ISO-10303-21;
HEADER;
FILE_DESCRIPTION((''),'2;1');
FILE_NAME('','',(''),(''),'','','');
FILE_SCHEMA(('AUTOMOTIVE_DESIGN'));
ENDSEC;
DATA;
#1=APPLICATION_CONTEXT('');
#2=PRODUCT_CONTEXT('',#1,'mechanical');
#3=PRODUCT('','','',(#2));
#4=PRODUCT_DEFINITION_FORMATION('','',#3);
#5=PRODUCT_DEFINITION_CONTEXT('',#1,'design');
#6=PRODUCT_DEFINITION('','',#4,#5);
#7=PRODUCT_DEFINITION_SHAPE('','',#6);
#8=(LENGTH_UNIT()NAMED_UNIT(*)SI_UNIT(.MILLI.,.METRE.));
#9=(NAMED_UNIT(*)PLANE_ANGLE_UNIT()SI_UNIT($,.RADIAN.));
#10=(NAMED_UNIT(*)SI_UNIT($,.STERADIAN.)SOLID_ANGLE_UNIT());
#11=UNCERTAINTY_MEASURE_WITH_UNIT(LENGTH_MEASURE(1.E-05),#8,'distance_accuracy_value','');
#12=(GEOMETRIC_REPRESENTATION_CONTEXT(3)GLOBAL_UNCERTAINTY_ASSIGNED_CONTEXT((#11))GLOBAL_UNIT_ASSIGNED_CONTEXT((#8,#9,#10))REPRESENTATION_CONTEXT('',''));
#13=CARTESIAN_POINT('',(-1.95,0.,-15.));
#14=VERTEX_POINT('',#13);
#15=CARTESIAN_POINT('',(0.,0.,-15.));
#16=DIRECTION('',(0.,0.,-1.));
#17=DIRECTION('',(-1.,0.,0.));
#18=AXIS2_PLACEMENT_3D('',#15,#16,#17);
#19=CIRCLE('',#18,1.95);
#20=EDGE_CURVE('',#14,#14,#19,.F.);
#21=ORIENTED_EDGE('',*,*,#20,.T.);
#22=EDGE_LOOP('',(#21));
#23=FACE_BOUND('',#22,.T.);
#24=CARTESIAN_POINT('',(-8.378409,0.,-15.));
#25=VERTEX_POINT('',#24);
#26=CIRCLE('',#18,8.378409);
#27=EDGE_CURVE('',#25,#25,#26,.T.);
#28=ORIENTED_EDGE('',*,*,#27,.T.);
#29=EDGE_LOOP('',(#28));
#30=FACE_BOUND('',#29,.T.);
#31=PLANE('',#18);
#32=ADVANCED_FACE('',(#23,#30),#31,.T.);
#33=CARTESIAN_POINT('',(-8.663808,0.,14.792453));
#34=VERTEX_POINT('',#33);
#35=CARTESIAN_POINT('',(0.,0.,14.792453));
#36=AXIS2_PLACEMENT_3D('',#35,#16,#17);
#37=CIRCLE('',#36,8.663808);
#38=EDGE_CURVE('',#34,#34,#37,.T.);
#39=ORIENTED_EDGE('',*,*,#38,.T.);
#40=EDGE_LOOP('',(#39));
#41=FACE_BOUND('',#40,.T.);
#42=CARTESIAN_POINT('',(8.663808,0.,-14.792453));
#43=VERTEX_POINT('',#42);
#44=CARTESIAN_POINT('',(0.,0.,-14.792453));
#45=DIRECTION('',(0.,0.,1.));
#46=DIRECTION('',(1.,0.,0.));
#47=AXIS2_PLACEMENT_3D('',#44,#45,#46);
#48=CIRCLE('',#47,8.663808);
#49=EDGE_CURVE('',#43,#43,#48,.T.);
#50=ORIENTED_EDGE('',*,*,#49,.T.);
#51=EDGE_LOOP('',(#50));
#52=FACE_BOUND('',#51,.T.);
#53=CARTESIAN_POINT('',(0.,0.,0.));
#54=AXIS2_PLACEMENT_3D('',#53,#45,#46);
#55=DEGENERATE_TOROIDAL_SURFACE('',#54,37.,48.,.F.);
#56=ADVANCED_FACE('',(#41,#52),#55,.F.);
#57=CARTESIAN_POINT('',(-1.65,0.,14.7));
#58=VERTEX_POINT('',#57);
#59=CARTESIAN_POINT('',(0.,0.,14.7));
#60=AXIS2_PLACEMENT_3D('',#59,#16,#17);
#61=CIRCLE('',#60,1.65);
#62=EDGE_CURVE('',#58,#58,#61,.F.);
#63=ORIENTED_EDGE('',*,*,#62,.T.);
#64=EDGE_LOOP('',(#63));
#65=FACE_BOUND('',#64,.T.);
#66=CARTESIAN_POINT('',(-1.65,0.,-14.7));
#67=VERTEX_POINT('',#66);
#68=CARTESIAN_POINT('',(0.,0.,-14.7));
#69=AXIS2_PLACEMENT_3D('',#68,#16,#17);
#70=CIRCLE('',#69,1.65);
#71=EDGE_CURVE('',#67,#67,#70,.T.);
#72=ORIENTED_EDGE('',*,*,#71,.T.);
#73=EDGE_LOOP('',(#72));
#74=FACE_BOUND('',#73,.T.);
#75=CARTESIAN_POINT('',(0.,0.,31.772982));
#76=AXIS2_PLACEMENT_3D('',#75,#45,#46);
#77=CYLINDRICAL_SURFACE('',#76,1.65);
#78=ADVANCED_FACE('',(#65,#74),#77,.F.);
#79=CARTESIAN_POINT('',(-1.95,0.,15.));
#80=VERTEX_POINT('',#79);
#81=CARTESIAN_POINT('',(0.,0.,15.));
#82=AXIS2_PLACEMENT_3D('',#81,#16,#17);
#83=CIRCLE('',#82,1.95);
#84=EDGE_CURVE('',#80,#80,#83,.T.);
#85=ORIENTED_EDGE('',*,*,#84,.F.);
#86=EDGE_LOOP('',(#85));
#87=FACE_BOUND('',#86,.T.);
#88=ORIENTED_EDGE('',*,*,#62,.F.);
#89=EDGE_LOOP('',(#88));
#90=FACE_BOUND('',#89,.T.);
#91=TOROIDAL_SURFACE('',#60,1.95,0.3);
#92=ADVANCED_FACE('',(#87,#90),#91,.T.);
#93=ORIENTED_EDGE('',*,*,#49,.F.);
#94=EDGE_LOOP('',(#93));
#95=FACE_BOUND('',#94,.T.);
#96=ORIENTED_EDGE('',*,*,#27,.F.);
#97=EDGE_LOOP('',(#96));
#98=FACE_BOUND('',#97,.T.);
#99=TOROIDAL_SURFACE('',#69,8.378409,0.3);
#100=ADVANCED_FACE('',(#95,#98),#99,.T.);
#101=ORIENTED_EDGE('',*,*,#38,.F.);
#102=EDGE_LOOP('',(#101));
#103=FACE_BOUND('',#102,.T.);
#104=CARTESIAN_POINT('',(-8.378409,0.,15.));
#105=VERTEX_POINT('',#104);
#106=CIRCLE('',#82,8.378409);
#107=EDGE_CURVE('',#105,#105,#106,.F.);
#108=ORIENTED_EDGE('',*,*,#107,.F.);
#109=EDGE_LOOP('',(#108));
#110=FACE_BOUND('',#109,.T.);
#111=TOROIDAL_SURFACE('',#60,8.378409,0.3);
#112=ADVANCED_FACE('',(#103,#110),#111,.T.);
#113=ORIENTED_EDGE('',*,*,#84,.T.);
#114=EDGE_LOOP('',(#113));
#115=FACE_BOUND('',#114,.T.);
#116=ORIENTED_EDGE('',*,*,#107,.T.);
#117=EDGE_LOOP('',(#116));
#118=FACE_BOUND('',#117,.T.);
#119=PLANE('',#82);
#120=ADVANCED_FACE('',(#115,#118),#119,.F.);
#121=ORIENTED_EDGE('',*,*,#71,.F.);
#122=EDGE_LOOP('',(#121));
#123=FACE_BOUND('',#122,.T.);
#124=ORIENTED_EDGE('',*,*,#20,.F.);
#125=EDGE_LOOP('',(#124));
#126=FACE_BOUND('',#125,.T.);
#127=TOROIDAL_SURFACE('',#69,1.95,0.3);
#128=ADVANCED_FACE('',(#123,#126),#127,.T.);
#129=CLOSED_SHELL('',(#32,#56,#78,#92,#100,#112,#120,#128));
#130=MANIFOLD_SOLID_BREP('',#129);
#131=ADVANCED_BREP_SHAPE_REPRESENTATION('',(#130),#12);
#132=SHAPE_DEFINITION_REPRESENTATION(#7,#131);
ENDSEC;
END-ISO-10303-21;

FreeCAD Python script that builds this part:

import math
import FreeCAD as App
import Part
import Sketcher
from FreeCAD import Vector
Q = App.Units.Quantity


def edges_at(feature, points):
    """Names of the edges that pass closest to the given points."""
    edges = feature.Shape.Edges
    near = lambda p: min(range(len(edges)), key=lambda i: edges[i].distToShape(Part.Vertex(*p))[0])
    return sorted({f"Edge{near(p) + 1}" for p in points})

doc = App.newDocument("Part")
body = doc.addObject("PartDesign::Body", "Body")

# Sketch on YZ plane
sketch1 = body.newObject("Sketcher::SketchObject", "Sketch")
sketch1.AttachmentSupport = (doc.getObject("YZ_Plane"), [""])
sketch1.MapMode = "FlatFace"
sketch1.addGeometry([
    Part.ArcOfCircle(Part.Circle(Vector(-37, 0, 0), Vector(0, 0, 1), 48), math.radians(-18), math.radians(18)),
    Part.LineSegment(Vector(9, 15, 0), Vector(2, 15, 0)),
    Part.LineSegment(Vector(2, 15, 0), Vector(2, -15, 0)),
    Part.LineSegment(Vector(2, -15, 0), Vector(9, -15, 0)),
], False)
sketch1.addConstraint([
    Sketcher.Constraint("Coincident", 0, 2, 1, 1),
    Sketcher.Constraint("Coincident", 1, 2, 2, 1),
    Sketcher.Constraint("Coincident", 2, 2, 3, 1),
    Sketcher.Constraint("Coincident", 3, 2, 0, 1),
    Sketcher.Constraint("Horizontal", 1),
    Sketcher.Constraint("Vertical", 2),
    Sketcher.Constraint("Horizontal", 3),
    Sketcher.Constraint("Symmetric", 0, 2, 3, 2, -1),
    Sketcher.Constraint("Radius", 0, Q("48 mm")),
    Sketcher.Constraint("DistanceY", 2, 2, 2, 1, Q("30 mm")),
    Sketcher.Constraint("DistanceX", 0, 3, -1, 1, Q("37 mm")),
    Sketcher.Constraint("DistanceX", -1, 1, 1, 2, Q("1.65 mm")),
])
revolution = body.newObject("PartDesign::Revolution", "Revolution")
revolution.Profile = sketch1
revolution.ReferenceAxis = (sketch1, ["V_Axis"])
revolution.Angle = 360
doc.recompute()

fillet = body.newObject("PartDesign::Fillet", "Fillet")
fillet.Base = (revolution, edges_at(revolution, [
    (-1.65, 0, -15),
    (-1.65, 0, 15),
    (-8.596, 0, 15),
    (-8.596, 0, -15),
]))
fillet.Radius = 0.3

doc.recompute()
